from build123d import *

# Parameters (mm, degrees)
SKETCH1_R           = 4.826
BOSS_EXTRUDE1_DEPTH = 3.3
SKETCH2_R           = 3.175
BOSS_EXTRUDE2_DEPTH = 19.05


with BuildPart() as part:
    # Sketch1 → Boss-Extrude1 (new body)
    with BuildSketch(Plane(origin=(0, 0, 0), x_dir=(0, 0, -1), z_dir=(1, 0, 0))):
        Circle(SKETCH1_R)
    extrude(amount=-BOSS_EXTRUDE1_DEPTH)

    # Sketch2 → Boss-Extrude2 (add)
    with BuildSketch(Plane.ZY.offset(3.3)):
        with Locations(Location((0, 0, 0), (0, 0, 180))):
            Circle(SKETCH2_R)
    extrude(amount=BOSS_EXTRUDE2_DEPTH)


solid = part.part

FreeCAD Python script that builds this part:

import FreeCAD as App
import Part
import Sketcher
from FreeCAD import Vector
Q = App.Units.Quantity

doc = App.newDocument("Part")
params = doc.addObject("Spreadsheet::Sheet", "Params")
for row, (alias, value) in enumerate([
    ("sketch1_diameter", "0.38 in"),
    ("pad1_length", "3.3 mm"),
    ("sketch2_diameter", "0.25 in"),
    ("pad2_length", "0.75 in"),
], start=1):
    params.set(f"A{row}", alias)
    params.set(f"B{row}", "=" + value)
    params.setAlias(f"B{row}", alias)

body = doc.addObject("PartDesign::Body", "Body")

# Sketch on YZ plane
sketch1 = body.newObject("Sketcher::SketchObject", "Sketch")
sketch1.AttachmentSupport = (doc.getObject("YZ_Plane"), [""])
sketch1.MapMode = "FlatFace"
sketch1.addGeometry(Part.Circle(Vector(0, 0, 0), Vector(0, 0, 1), 4.8), False)
sketch1.addConstraint([
    Sketcher.Constraint("Coincident", 0, 3, -1, 1),
    Sketcher.Constraint("Diameter", 0, Q("0.38 in")),
])
sketch1.setExpression("Constraints[1]", "Params.sketch1_diameter")
pad1 = body.newObject("PartDesign::Pad", "Pad")
pad1.Profile = sketch1
pad1.setExpression("Length", "Params.pad1_length")
pad1.Reversed = True

# Sketch on YZ plane
sketch2 = body.newObject("Sketcher::SketchObject", "Sketch001")
sketch2.AttachmentSupport = (doc.getObject("YZ_Plane"), [""])
sketch2.MapMode = "FlatFace"
sketch2.AttachmentOffset = App.Placement(Vector(0, 0, -3.3), App.Rotation())
sketch2.addGeometry(Part.Circle(Vector(0, 0, 0), Vector(0, 0, 1), 3.2), False)
sketch2.addConstraint([
    Sketcher.Constraint("Coincident", 0, 3, -1, 1),
    Sketcher.Constraint("Diameter", 0, Q("0.25 in")),
])
sketch2.setExpression("Constraints[1]", "Params.sketch2_diameter")
pad2 = body.newObject("PartDesign::Pad", "Pad001")
pad2.Profile = sketch2
pad2.setExpression("Length", "Params.pad2_length")
pad2.Reversed = True

doc.recompute()
